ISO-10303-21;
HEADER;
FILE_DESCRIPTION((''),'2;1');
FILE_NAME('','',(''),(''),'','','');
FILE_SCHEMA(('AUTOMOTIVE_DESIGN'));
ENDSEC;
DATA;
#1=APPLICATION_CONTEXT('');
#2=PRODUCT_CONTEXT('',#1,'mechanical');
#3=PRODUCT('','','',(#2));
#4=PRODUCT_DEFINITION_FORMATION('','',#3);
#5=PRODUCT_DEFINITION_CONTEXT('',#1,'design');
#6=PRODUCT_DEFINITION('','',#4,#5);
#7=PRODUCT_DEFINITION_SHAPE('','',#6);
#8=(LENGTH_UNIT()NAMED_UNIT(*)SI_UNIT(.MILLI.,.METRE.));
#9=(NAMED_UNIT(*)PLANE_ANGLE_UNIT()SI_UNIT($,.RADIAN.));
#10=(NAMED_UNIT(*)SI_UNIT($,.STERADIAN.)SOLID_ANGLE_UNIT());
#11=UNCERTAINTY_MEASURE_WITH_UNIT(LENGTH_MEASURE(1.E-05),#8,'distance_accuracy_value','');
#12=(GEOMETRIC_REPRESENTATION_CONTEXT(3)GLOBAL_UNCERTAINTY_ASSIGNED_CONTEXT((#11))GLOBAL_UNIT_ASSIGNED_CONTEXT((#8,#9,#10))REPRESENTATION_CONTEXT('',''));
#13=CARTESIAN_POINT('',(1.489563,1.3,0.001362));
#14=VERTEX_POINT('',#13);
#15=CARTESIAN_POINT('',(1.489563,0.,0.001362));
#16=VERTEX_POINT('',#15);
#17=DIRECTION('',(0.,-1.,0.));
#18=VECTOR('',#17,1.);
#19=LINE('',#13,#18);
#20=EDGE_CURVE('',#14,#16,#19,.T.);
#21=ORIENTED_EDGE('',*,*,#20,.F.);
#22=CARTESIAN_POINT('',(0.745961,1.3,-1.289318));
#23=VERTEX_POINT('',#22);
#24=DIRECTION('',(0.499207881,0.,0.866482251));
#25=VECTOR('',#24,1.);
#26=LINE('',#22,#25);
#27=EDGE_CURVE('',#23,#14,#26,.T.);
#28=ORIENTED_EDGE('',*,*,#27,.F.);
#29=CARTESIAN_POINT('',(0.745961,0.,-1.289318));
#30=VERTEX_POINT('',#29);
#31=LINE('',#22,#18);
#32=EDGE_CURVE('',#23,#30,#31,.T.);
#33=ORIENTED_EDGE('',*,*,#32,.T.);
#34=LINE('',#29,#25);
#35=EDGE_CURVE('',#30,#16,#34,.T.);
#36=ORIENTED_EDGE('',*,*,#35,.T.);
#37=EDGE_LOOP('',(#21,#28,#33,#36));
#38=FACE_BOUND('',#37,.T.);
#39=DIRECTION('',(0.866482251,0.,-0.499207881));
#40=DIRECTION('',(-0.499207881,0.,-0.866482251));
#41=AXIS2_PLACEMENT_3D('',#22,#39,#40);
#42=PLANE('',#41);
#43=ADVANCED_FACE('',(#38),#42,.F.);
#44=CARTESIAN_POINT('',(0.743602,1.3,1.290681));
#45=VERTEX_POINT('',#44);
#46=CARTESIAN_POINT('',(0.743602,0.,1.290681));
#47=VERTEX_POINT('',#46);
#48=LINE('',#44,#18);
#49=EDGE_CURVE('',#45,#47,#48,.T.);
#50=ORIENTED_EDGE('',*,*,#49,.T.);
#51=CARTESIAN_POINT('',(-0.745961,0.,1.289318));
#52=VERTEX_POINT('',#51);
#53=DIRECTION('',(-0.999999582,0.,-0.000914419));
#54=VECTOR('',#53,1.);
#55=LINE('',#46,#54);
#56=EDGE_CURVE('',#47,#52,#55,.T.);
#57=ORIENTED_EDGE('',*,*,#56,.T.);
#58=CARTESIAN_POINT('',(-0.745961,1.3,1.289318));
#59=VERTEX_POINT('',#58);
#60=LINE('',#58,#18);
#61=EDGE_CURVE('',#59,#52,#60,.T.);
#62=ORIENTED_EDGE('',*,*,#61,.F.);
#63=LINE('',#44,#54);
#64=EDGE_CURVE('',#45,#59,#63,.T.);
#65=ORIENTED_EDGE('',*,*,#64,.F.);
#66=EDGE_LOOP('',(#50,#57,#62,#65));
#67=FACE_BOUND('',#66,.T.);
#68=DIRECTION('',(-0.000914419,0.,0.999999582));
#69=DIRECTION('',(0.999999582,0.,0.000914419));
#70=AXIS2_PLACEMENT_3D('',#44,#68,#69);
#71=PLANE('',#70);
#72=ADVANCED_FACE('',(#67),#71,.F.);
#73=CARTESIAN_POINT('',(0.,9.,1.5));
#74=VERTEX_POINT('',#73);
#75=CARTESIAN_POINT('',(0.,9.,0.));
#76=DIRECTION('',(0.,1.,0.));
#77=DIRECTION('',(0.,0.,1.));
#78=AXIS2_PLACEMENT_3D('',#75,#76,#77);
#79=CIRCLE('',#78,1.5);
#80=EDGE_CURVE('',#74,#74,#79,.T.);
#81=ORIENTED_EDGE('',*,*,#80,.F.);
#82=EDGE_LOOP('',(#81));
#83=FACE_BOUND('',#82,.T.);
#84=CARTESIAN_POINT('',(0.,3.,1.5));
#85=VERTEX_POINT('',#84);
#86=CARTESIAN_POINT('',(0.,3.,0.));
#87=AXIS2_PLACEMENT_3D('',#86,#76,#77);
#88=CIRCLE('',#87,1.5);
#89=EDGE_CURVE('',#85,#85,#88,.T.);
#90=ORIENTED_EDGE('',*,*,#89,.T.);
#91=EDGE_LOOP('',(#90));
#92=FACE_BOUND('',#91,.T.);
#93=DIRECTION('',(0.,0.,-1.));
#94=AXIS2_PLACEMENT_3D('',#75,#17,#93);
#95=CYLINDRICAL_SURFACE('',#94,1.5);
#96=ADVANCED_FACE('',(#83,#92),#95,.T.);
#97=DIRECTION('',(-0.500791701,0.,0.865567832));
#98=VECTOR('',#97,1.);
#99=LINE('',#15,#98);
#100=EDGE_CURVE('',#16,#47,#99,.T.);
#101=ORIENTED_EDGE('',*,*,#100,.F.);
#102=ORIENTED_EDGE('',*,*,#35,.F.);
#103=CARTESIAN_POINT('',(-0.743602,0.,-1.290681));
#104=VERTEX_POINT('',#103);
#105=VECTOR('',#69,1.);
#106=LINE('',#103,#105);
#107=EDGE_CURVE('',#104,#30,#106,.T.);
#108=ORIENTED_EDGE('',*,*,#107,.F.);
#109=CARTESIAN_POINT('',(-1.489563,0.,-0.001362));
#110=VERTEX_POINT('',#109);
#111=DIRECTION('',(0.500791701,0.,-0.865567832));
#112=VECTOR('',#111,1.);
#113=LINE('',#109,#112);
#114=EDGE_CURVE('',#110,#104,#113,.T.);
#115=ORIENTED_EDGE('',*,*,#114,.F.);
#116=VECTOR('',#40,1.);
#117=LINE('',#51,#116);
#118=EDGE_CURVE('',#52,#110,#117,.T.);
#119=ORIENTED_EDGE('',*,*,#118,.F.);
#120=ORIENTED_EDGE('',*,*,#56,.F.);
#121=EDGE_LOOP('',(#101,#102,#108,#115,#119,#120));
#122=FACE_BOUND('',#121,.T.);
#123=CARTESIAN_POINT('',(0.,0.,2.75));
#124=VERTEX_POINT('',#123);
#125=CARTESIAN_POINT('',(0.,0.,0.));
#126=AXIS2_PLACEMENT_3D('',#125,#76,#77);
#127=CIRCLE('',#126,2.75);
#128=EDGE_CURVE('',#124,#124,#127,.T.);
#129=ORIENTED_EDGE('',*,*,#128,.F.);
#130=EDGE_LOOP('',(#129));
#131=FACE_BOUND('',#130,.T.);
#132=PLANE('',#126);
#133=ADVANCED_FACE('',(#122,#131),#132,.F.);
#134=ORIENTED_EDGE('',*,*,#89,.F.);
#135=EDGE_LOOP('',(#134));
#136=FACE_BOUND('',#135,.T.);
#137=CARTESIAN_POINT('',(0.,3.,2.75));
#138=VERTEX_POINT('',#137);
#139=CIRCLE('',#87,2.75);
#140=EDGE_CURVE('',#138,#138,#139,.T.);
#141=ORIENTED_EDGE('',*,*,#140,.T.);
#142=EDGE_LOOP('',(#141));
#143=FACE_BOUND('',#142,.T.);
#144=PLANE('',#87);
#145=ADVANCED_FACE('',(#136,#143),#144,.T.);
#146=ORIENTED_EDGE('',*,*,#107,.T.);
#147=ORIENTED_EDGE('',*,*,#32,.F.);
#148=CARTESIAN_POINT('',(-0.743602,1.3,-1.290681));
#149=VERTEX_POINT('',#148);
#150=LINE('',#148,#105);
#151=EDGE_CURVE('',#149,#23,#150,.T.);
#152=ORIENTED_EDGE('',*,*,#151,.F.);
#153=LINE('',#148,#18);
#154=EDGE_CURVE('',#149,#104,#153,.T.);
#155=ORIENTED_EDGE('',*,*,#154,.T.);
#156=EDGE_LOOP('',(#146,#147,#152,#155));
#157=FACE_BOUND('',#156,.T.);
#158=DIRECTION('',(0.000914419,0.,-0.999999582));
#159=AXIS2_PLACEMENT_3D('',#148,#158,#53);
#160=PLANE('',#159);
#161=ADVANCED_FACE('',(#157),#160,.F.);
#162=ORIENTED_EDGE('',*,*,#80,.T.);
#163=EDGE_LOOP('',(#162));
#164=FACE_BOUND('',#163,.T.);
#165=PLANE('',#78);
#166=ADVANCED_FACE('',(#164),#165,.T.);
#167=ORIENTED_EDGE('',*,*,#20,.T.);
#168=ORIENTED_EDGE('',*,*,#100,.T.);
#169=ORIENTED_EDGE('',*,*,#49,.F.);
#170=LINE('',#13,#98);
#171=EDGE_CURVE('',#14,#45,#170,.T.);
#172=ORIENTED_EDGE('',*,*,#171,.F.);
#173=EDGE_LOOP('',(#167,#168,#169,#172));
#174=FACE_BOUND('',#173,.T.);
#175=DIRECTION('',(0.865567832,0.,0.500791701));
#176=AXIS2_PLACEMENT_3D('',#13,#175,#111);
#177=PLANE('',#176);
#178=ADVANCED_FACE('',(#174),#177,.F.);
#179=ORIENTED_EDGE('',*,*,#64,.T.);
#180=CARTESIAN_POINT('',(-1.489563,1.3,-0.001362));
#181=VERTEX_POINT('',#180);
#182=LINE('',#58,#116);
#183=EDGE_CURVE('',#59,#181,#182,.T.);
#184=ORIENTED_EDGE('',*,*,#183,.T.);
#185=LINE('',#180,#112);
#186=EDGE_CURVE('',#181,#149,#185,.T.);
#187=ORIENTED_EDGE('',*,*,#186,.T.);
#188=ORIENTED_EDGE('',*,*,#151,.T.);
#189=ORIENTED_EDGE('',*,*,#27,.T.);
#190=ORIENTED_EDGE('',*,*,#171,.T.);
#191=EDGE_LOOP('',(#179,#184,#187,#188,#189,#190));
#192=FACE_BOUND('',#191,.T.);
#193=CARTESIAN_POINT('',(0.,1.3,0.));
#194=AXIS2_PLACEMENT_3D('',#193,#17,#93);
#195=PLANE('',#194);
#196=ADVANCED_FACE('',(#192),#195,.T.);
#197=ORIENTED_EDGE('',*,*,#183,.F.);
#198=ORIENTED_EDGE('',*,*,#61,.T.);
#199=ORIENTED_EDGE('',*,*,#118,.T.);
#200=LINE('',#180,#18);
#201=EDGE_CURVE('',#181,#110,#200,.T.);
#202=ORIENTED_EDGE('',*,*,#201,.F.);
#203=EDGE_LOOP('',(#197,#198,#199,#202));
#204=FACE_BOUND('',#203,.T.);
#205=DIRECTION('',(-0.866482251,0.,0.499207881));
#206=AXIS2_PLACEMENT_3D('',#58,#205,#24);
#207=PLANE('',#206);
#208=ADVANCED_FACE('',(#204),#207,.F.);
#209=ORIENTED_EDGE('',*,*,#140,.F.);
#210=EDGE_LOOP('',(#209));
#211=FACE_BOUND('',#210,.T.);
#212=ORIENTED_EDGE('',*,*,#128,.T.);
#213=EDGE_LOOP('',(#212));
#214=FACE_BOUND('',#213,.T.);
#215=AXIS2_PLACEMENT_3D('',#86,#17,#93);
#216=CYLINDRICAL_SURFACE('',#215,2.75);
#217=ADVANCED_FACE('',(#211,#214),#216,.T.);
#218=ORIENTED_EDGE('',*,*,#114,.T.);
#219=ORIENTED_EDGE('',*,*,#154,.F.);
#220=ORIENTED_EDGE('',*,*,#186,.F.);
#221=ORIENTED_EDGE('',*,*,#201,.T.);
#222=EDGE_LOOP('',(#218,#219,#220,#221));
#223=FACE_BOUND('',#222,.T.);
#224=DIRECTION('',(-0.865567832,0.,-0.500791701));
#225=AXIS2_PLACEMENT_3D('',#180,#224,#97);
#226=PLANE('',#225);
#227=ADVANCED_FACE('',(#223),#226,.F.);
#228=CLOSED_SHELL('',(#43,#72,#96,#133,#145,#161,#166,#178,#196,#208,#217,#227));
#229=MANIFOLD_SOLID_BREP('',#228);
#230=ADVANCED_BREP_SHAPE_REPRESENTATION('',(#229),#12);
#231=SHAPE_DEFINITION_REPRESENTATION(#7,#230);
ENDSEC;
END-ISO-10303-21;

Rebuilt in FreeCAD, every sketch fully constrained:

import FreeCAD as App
import Part
import Sketcher

V = App.Vector

doc = App.newDocument("Part")
body = doc.addObject("PartDesign::Body", "Body")

sketch1 = doc.addObject("Sketcher::SketchObject", "Sketch")
body.addObject(sketch1)
sketch1.AttachmentSupport = (doc.XZ_Plane, [""])
sketch1.MapMode = "FlatFace"
sketch1.addGeometry(Part.Circle(V(0, 0, 0), V(0, 0, 1), 2.8), False)
sketch1.addConstraint([
    Sketcher.Constraint("Coincident", 0, 3, -1, 1),
    Sketcher.Constraint("Diameter", 0, 5.5),
])
pad1 = doc.addObject("PartDesign::Pad", "Pad")
body.addObject(pad1)
pad1.Profile = sketch1
pad1.Length = 3
pad1.Reversed = True

sketch2 = doc.addObject("Sketcher::SketchObject", "Sketch001")
body.addObject(sketch2)
sketch2.AttachmentSupport = (doc.XZ_Plane, [""])
sketch2.MapMode = "FlatFace"
sketch2.AttachmentOffset = App.Placement(V(0, 0, -3), App.Rotation())
sketch2.addGeometry(Part.Circle(V(0, 0, 0), V(0, 0, 1), 1.5), False)
sketch2.addConstraint([
    Sketcher.Constraint("Coincident", 0, 3, -1, 1),
    Sketcher.Constraint("Diameter", 0, 3.0),
])
pad2 = doc.addObject("PartDesign::Pad", "Pad001")
body.addObject(pad2)
pad2.Profile = sketch2
pad2.Length = 6
pad2.Reversed = True

sketch3 = doc.addObject("Sketcher::SketchObject", "Sketch002")
body.addObject(sketch3)
sketch3.AttachmentSupport = (doc.XZ_Plane, [""])
sketch3.MapMode = "FlatFace"
sketch3.addGeometry([
    Part.LineSegment(V(0.7, 1.3, 0), V(-0.7, 1.3, 0)),
    Part.LineSegment(V(-0.7, 1.3, 0), V(-1.5, 0, 0)),
    Part.LineSegment(V(-1.5, 0, 0), V(-0.7, -1.3, 0)),
    Part.LineSegment(V(-0.7, -1.3, 0), V(0.7, -1.3, 0)),
    Part.LineSegment(V(0.7, -1.3, 0), V(1.5, 0, 0)),
    Part.LineSegment(V(1.5, 0, 0), V(0.7, 1.3, 0)),
], False)
sketch3.addConstraint([
    Sketcher.Constraint("Coincident", 0, 2, 1, 1),
    Sketcher.Constraint("Coincident", 1, 2, 2, 1),
    Sketcher.Constraint("Coincident", 2, 2, 3, 1),
    Sketcher.Constraint("Coincident", 3, 2, 4, 1),
    Sketcher.Constraint("Coincident", 4, 2, 5, 1),
    Sketcher.Constraint("Coincident", 5, 2, 0, 1),
    Sketcher.Constraint("Symmetric", 0, 2, 3, 2, -1, 1),
    Sketcher.Constraint("Symmetric", 1, 2, 4, 2, -1, 1),
    Sketcher.Constraint("Symmetric", 2, 2, 5, 2, -1, 1),
    Sketcher.Constraint("Equal", 0, 1),
    Sketcher.Constraint("Equal", 1, 2),
    Sketcher.Constraint("DistanceY", 2, 2, 0, 2, 2.579999),
    Sketcher.Constraint("DistanceX", 2, 2, -1, 1, 0.743602),
    Sketcher.Constraint("DistanceX", 1, 2, 0, 2, 0.743602),
    Sketcher.Constraint("DistanceY", -1, 1, 0, 2, 1.289318),
])
pocket1 = doc.addObject("PartDesign::Pocket", "Pocket")
body.addObject(pocket1)
pocket1.Profile = sketch3
pocket1.Length = 1.3

doc.recompute()
